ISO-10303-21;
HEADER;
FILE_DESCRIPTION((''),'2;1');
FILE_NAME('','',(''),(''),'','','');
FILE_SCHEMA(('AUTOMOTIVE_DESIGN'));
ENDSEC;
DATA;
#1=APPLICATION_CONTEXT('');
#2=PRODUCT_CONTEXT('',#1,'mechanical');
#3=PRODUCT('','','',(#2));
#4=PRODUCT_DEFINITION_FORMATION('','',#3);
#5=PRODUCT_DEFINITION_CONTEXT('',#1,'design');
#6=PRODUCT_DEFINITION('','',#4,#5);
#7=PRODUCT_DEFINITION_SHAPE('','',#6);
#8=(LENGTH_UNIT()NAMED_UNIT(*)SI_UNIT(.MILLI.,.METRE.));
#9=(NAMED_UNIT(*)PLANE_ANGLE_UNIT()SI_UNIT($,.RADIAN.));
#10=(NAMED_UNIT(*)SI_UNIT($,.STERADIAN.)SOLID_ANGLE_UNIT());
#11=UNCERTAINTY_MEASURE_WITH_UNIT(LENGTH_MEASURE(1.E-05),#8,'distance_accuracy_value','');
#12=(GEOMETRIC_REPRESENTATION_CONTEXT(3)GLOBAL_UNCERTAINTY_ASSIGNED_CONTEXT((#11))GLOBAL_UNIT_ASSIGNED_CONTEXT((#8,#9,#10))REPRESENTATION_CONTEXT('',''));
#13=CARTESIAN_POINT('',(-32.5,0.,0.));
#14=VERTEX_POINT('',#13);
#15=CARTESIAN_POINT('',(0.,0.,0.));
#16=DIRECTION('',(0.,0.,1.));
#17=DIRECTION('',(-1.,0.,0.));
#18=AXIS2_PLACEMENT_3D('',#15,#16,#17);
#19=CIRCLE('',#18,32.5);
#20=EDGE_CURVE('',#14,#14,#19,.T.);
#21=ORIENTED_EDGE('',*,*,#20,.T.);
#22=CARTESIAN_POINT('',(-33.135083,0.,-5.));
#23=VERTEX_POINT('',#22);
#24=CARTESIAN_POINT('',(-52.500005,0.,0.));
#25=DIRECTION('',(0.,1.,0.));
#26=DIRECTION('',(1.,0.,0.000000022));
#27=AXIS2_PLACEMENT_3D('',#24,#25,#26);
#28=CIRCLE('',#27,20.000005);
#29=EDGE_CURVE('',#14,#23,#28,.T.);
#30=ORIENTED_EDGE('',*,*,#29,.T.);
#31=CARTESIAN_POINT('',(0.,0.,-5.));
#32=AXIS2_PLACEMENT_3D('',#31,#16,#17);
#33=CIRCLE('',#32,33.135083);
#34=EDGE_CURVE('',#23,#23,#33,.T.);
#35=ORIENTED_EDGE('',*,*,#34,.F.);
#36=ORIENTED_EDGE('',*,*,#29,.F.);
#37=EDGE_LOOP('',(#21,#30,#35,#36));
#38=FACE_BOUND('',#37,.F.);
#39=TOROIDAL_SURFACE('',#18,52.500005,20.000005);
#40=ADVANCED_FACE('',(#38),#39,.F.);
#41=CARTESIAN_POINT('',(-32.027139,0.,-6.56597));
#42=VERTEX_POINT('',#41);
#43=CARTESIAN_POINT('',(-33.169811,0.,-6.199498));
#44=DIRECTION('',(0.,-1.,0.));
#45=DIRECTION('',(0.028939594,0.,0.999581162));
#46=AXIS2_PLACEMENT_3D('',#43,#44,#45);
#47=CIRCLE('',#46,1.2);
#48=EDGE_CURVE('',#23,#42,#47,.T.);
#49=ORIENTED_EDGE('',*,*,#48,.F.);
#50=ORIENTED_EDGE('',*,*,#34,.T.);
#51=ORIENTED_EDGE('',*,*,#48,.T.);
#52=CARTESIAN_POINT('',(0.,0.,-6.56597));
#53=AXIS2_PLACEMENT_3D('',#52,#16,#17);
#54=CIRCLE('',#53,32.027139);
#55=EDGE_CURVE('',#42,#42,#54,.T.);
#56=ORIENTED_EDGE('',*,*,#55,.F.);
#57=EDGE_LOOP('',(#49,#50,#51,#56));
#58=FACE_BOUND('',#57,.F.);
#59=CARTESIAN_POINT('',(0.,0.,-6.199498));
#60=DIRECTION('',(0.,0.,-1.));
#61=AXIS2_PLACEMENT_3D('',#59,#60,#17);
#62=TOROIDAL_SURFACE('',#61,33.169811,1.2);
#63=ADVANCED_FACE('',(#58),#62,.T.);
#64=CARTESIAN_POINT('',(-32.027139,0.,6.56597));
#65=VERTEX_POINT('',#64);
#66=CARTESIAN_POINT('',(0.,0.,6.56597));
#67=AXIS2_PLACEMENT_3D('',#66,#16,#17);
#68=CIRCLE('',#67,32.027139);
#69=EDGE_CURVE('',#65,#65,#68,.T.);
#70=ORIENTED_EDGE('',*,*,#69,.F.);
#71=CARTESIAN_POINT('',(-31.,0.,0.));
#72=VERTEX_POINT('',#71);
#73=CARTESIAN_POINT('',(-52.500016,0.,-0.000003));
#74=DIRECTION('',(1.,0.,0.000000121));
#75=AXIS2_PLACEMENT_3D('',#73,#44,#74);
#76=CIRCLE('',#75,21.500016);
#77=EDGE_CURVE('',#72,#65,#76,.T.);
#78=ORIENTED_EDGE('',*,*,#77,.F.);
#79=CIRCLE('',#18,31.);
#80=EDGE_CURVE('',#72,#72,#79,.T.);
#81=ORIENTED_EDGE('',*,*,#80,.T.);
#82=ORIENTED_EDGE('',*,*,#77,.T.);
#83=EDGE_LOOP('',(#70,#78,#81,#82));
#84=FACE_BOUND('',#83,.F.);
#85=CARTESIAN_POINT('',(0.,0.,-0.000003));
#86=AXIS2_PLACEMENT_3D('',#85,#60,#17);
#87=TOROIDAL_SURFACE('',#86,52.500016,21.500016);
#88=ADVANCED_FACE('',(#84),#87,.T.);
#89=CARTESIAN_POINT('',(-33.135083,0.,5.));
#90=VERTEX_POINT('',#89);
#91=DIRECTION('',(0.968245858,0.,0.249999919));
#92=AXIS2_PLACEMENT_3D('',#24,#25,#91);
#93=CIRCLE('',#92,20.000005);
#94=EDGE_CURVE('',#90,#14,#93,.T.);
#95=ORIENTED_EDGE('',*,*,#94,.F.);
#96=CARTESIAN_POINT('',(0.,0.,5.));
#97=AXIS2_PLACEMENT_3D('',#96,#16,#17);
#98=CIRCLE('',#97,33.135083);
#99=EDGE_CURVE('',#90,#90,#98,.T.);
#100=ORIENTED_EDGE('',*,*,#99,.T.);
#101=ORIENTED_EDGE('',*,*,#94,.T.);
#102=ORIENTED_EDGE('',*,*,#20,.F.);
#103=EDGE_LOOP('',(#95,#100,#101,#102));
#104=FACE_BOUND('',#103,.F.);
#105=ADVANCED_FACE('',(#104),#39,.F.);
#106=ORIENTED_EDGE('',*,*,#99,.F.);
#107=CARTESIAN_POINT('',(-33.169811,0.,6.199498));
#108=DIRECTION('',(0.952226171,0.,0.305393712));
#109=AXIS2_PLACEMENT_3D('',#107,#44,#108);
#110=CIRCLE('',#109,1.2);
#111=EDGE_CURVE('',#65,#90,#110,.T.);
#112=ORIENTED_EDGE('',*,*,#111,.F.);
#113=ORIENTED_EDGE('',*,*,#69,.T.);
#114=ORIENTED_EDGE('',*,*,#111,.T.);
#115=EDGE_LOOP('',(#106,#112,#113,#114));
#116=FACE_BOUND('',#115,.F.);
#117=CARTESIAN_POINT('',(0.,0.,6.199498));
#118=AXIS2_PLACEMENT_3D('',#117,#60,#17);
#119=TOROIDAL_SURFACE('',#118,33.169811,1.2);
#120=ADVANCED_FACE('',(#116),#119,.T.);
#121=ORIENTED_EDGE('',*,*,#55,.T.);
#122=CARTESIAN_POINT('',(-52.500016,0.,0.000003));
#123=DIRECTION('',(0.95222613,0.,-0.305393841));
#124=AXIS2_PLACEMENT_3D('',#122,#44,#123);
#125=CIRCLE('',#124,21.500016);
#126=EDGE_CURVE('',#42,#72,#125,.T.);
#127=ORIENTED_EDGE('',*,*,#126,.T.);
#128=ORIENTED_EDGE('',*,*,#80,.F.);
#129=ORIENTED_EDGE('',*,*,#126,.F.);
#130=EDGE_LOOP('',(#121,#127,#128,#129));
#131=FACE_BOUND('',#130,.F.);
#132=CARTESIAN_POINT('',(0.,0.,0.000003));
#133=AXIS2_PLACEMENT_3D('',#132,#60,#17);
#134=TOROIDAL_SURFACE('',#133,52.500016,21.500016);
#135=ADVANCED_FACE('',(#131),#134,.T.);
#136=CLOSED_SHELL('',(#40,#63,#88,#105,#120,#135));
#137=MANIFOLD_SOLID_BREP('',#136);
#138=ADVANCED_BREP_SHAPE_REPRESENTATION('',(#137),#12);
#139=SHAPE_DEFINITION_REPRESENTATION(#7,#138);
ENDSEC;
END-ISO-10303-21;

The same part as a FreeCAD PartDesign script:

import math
import FreeCAD as App
import Part
import Sketcher

V = App.Vector
Q = App.Units.Quantity

doc = App.newDocument("Part")
body = doc.addObject("PartDesign::Body", "Body")

# Sketch on XZ plane
sketch1 = body.newObject("Sketcher::SketchObject", "Sketch")
sketch1.AttachmentSupport = (doc.getObject("XZ_Plane"), [""])
sketch1.MapMode = "FlatFace"
sketch1.addGeometry([
    Part.ArcOfCircle(Part.Circle(V(-52.5, 0, 0), V(0, 0, 1), 20), math.radians(0), math.radians(14.48)),  # 0
    Part.ArcOfCircle(Part.Circle(V(-52.5, 0, 0), V(0, 0, 1), 20), math.radians(-14.48), math.radians(0)),  # 1
    Part.ArcOfCircle(Part.Circle(V(-33.2, -6.2, 0), V(0, 0, 1), 1.2), math.radians(88), math.radians(342)),  # 2
    Part.ArcOfCircle(Part.Circle(V(-52.5, 0, 0), V(0, 0, 1), 21.5), math.radians(-17.78), math.radians(0)),  # 3
    Part.ArcOfCircle(Part.Circle(V(-52.5, 0, 0), V(0, 0, 1), 21.5), math.radians(0), math.radians(17.78)),  # 4
    Part.ArcOfCircle(Part.Circle(V(-33.2, 6.2, 0), V(0, 0, 1), 1.2), math.radians(18), math.radians(272)),  # 5
], False)
sketch1.addConstraint([
    Sketcher.Constraint("Tangent", 0, 1, 1, 2),
    Sketcher.Constraint("Coincident", 1, 1, 2, 1),
    Sketcher.Constraint("Tangent", 2, 2, 3, 1),
    Sketcher.Constraint("Tangent", 3, 2, 4, 1),
    Sketcher.Constraint("Tangent", 4, 2, 5, 1),
    Sketcher.Constraint("Coincident", 5, 2, 0, 2),
    Sketcher.Constraint("Equal", 0, 1),
    Sketcher.Constraint("Equal", 3, 4),
    Sketcher.Constraint("Equal", 2, 5),
    Sketcher.Constraint("Symmetric", 2, 3, 5, 3, -1),
    Sketcher.Constraint("PointOnObject", 0, 3, -1),
    Sketcher.Constraint("PointOnObject", 0, 1, -1),
    Sketcher.Constraint("PointOnObject", 3, 2, -1),
    Sketcher.Constraint("Radius", 2, Q("1.2 mm")),
    Sketcher.Constraint("DistanceY", 1, 1, -1, 1, Q("5 mm")),
    Sketcher.Constraint("DistanceX", 3, 2, -1, 1, Q("31 mm")),
    Sketcher.Constraint("DistanceX", 0, 1, -1, 1, Q("32.5 mm")),
    Sketcher.Constraint("Radius", 0, Q("20.000005 mm")),
    Sketcher.Constraint("Radius", 3, Q("21.500016 mm")),
])
revolution = body.newObject("PartDesign::Revolution", "Revolution")
revolution.Profile = sketch1
revolution.ReferenceAxis = (sketch1, ["V_Axis"])
revolution.Angle = 360

doc.recompute()
